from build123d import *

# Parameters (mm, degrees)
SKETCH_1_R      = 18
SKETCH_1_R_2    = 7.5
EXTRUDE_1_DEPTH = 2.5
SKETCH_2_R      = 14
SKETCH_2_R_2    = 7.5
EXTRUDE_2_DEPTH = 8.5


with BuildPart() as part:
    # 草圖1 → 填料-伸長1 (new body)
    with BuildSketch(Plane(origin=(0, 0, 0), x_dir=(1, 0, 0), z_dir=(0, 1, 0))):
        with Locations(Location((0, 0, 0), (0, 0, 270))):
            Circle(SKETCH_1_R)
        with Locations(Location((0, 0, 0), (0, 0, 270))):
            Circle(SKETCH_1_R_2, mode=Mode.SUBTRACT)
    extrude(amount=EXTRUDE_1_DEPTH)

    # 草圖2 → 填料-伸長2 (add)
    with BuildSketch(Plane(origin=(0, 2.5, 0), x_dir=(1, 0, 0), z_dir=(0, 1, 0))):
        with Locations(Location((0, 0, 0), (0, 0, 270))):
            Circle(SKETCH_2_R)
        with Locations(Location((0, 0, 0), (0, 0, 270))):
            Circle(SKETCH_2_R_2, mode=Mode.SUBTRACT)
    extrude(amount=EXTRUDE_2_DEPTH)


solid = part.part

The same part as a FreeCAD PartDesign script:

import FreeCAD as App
import Part
import Sketcher

V = App.Vector

doc = App.newDocument("Part")
body = doc.addObject("PartDesign::Body", "Body")

# Sketch on XZ plane
sketch1 = body.newObject("Sketcher::SketchObject", "Sketch")
sketch1.AttachmentSupport = (doc.getObject("XZ_Plane"), [""])
sketch1.MapMode = "FlatFace"
sketch1.addGeometry([
    Part.Circle(V(0, 0, 0), V(0, 0, 1), 18),
    Part.Circle(V(0, 0, 0), V(0, 0, 1), 8),
], False)
sketch1.addConstraint([
    Sketcher.Constraint("Coincident", 0, 3, -1, 1),
    Sketcher.Constraint("Coincident", 1, 3, -1, 1),
    Sketcher.Constraint("Diameter", 0, 36.0),
    Sketcher.Constraint("Diameter", 1, 15.0),
])
pad1 = body.newObject("PartDesign::Pad", "Pad")
pad1.Profile = sketch1
pad1.Length = 2.5
pad1.Reversed = True

# Sketch on XZ plane
sketch2 = body.newObject("Sketcher::SketchObject", "Sketch001")
sketch2.AttachmentSupport = (doc.getObject("XZ_Plane"), [""])
sketch2.MapMode = "FlatFace"
sketch2.AttachmentOffset = App.Placement(V(0, 0, -2.5), App.Rotation())
sketch2.addGeometry([
    Part.Circle(V(0, 0, 0), V(0, 0, 1), 14),
    Part.Circle(V(0, 0, 0), V(0, 0, 1), 8),
], False)
sketch2.addConstraint([
    Sketcher.Constraint("Coincident", 0, 3, -1, 1),
    Sketcher.Constraint("Coincident", 1, 3, -1, 1),
    Sketcher.Constraint("Diameter", 0, 28.0),
    Sketcher.Constraint("Diameter", 1, 15.0),
])
pad2 = body.newObject("PartDesign::Pad", "Pad001")
pad2.Profile = sketch2
pad2.Length = 8.5
pad2.Reversed = True

doc.recompute()
